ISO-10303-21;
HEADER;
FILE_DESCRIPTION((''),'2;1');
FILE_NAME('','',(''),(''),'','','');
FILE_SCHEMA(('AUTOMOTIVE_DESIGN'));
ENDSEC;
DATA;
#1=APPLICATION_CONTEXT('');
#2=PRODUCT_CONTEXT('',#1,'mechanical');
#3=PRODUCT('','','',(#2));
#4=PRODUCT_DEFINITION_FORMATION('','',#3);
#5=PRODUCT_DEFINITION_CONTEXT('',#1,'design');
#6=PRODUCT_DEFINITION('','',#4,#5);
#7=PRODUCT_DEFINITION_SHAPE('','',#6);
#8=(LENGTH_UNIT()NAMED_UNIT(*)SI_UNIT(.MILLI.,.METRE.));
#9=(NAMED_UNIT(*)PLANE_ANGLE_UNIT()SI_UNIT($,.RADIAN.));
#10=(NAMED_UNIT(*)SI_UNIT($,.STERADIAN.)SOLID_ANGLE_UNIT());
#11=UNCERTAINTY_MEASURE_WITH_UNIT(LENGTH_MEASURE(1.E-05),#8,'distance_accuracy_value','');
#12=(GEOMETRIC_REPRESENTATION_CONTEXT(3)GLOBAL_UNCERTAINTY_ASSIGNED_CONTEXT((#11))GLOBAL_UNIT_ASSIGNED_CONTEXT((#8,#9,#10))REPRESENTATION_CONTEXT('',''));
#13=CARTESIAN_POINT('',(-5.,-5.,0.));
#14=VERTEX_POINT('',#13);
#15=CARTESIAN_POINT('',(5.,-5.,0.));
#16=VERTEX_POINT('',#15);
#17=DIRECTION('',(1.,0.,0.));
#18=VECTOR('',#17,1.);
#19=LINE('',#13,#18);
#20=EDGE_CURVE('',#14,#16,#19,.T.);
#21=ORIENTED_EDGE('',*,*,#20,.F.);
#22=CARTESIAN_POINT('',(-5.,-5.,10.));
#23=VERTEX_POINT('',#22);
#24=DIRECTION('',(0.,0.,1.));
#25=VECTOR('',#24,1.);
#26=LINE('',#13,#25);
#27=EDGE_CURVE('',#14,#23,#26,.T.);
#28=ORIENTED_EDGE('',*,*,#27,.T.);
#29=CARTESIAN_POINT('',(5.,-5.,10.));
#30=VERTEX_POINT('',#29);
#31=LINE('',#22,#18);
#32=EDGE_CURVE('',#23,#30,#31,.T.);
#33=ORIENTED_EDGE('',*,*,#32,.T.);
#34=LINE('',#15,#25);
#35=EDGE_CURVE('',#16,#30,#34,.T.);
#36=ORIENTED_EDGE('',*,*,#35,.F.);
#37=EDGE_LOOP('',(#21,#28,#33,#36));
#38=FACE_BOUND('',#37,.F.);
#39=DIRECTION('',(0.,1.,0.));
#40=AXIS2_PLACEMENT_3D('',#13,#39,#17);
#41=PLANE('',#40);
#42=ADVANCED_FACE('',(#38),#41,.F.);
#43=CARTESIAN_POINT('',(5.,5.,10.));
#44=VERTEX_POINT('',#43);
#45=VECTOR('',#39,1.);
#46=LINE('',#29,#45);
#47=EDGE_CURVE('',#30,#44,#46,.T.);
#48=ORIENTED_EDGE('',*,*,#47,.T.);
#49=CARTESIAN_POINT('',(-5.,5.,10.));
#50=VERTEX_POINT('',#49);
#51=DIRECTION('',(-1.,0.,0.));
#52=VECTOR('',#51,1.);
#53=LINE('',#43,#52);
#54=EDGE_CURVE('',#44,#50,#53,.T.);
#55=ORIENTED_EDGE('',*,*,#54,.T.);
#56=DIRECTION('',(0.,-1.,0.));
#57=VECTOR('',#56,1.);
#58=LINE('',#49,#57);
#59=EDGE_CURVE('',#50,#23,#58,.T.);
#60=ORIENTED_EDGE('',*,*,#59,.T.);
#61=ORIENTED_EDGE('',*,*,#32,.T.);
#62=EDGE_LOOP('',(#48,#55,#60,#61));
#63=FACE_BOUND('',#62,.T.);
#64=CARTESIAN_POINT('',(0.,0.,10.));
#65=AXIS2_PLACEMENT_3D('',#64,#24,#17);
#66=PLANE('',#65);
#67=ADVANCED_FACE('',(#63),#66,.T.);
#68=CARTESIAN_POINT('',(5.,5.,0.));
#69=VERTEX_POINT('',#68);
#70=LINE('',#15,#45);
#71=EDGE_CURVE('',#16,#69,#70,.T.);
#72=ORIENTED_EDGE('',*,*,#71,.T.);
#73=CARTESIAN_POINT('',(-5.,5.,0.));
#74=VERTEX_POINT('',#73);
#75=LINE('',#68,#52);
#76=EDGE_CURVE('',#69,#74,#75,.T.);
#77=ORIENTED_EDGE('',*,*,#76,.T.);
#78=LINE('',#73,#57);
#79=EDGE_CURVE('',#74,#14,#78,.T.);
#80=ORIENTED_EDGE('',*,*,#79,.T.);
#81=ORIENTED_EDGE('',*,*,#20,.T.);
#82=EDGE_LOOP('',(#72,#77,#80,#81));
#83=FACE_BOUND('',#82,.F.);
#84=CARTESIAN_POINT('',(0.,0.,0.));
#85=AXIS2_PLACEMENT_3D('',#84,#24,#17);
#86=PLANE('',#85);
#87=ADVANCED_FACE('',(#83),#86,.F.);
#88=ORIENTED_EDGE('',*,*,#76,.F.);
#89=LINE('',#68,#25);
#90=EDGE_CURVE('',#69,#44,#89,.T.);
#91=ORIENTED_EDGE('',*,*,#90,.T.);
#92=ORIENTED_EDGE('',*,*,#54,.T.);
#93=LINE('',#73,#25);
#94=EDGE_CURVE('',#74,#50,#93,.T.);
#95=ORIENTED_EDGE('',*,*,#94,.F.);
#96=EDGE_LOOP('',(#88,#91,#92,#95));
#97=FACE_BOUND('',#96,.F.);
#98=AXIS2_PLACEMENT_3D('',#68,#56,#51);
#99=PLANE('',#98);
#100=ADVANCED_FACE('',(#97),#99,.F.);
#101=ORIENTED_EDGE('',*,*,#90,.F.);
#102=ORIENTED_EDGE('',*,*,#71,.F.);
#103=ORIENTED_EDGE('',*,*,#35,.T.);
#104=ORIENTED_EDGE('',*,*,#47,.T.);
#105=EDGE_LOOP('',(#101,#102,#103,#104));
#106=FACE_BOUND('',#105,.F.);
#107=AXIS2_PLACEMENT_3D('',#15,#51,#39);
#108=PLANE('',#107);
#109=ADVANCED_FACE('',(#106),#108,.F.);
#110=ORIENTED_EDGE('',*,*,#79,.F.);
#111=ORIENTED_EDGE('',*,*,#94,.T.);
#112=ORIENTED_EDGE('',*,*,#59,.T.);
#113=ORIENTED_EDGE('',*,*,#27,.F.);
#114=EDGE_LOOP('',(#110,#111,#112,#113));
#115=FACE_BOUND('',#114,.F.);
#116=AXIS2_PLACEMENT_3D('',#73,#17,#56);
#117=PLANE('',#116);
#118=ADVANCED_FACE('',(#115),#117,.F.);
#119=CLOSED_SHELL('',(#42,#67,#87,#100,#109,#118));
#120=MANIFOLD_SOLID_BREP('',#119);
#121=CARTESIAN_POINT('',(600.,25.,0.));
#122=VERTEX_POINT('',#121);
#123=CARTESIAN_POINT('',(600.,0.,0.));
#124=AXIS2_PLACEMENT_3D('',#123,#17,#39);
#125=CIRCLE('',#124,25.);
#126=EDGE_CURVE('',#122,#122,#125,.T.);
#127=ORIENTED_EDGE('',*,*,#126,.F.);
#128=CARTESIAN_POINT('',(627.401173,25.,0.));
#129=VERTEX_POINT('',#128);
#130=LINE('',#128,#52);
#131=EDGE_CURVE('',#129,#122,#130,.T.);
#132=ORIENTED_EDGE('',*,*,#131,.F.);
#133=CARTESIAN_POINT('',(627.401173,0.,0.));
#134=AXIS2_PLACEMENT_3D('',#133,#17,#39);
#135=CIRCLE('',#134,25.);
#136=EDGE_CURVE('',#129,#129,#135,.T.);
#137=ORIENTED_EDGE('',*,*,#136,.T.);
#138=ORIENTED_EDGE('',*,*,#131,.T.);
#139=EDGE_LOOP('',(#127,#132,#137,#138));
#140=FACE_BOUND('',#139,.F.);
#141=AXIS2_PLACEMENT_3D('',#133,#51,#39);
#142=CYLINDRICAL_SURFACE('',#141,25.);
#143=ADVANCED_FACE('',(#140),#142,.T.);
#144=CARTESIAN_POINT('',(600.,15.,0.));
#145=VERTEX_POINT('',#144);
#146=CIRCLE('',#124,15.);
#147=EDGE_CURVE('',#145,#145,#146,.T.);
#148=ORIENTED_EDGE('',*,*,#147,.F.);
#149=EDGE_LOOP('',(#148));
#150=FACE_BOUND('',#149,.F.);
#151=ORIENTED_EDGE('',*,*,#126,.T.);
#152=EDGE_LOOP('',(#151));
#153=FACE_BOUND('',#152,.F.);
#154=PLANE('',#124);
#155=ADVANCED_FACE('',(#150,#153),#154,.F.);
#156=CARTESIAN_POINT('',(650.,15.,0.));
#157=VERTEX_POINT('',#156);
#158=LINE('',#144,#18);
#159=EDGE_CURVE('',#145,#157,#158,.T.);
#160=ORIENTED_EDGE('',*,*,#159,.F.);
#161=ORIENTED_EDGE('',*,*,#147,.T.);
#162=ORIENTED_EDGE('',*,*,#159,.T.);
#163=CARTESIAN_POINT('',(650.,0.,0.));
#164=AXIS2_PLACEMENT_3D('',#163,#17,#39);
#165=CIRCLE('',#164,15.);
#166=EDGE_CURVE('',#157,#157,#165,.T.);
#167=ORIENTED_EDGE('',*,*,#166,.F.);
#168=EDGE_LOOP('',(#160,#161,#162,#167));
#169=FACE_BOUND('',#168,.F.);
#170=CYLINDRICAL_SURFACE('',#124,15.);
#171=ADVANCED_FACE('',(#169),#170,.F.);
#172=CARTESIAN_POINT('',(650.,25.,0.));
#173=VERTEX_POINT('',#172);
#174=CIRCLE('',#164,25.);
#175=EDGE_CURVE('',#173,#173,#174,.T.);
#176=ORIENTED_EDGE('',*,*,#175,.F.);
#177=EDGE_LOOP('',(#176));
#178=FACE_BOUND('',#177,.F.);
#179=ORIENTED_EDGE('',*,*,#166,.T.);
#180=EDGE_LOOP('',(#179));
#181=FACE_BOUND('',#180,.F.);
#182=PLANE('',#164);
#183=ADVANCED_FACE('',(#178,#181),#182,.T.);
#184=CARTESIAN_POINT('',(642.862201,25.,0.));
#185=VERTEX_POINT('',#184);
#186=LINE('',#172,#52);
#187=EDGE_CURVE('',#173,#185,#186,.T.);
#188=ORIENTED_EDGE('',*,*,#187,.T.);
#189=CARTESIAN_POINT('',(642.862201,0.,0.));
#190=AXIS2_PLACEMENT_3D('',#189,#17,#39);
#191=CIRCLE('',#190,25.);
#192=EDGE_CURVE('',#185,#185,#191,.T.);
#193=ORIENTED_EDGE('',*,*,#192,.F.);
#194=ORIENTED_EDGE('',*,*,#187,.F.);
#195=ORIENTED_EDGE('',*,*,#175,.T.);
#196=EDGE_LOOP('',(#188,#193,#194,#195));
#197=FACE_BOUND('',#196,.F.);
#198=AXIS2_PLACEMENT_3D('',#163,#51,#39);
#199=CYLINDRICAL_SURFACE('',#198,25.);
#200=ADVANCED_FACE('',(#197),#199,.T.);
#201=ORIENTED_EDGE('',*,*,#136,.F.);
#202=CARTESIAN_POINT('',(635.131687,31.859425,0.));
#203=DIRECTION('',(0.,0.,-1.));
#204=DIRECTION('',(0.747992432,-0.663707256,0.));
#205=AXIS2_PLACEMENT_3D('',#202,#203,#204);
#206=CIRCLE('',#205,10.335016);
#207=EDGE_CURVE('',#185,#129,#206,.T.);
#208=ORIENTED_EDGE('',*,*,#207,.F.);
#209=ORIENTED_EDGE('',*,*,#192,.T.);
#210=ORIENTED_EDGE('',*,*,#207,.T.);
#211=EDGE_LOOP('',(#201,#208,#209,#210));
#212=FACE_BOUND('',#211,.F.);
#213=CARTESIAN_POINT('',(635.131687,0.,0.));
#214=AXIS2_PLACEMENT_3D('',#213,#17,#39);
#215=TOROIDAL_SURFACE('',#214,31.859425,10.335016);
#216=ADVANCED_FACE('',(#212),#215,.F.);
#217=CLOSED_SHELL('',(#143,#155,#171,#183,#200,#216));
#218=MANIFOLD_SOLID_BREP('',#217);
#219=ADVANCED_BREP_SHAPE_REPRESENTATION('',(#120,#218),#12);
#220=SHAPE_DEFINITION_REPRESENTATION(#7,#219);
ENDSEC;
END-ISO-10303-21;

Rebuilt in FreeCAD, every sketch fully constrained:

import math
import FreeCAD as App
import Part
import Sketcher
from FreeCAD import Vector


def add_polygon(sketch, points):
    """Adds a closed chain of lines whose ends are joined by coincident constraints."""
    first, n = sketch.GeometryCount, len(points)
    for a, b in zip(points, points[1:] + points[:1]):
        sketch.addGeometry(Part.LineSegment(App.Vector(*a, 0), App.Vector(*b, 0)), False)
    for i in range(n):
        sketch.addConstraint(Sketcher.Constraint("Coincident", first + i, 2, first + (i + 1) % n, 1))

doc = App.newDocument("Part")
params = doc.addObject("Spreadsheet::Sheet", "Params")
for row, (alias, value) in enumerate([
    ("sketch1_width", "10 mm"),
    ("pad1_length", "10 mm"),
    ("sketch2_width", "50 mm"),
    ("sketch2_height", "10 mm"),
    ("revolution_angle", "360 deg"),
], start=1):
    params.set(f"A{row}", alias)
    params.set(f"B{row}", "=" + value)
    params.setAlias(f"B{row}", alias)

body = doc.addObject("PartDesign::Body", "Body")

sketch1 = body.newObject("Sketcher::SketchObject", "Sketch")
sketch1.AttachmentSupport = (doc.getObject("XY_Plane"), [""])
sketch1.MapMode = "FlatFace"
add_polygon(sketch1, [(-5, -5), (5, -5), (5, 5), (-5, 5)])
sketch1.addConstraint([
    Sketcher.Constraint("Horizontal", 0),
    Sketcher.Constraint("Vertical", 1),
    Sketcher.Constraint("Horizontal", 2),
    Sketcher.Constraint("Vertical", 3),
    Sketcher.Constraint("Symmetric", 0, 2, 2, 2, -1, 1),
    Sketcher.Constraint("Equal", 2, 1),
    Sketcher.Constraint("DistanceX", 0, 1, 0, 2, 10.0),
])
sketch1.setExpression("Constraints[10]", "Params.sketch1_width")
pad1 = body.newObject("PartDesign::Pad", "Pad")
pad1.Profile = sketch1
pad1.setExpression("Length", "Params.pad1_length")
body2 = doc.addObject("PartDesign::Body", "Body001")

sketch2 = body2.newObject("Sketcher::SketchObject", "Sketch001")
sketch2.AttachmentSupport = (doc.getObject("XY_Plane001"), [""])
sketch2.MapMode = "FlatFace"
sketch2.addGeometry([
    Part.LineSegment(Vector(600, 25, 0), Vector(600, 15, 0)),
    Part.LineSegment(Vector(600, 15, 0), Vector(650, 15, 0)),
    Part.LineSegment(Vector(650, 15, 0), Vector(650, 25, 0)),
    Part.LineSegment(Vector(650, 25, 0), Vector(643, 25, 0)),
    Part.ArcOfCircle(Part.Circle(Vector(635, 32, 0), Vector(0, 0, 1), 10), math.radians(-138), math.radians(-42)),
    Part.LineSegment(Vector(627, 25, 0), Vector(600, 25, 0)),
], False)
sketch2.addConstraint([
    Sketcher.Constraint("Coincident", 0, 2, 1, 1),
    Sketcher.Constraint("Coincident", 1, 2, 2, 1),
    Sketcher.Constraint("Coincident", 2, 2, 3, 1),
    Sketcher.Constraint("Coincident", 3, 2, 4, 2),
    Sketcher.Constraint("Coincident", 4, 1, 5, 1),
    Sketcher.Constraint("Coincident", 5, 2, 0, 1),
    Sketcher.Constraint("Vertical", 0),
    Sketcher.Constraint("Horizontal", 1),
    Sketcher.Constraint("Vertical", 2),
    Sketcher.Constraint("Horizontal", 3),
    Sketcher.Constraint("Horizontal", 5),
    Sketcher.Constraint("Horizontal", 3, 2, 4, 1),
    Sketcher.Constraint("DistanceX", 1, 1, 1, 2, 50.0),
    Sketcher.Constraint("DistanceY", 0, 2, 0, 1, 10.0),
    Sketcher.Constraint("DistanceX", -1, 1, 0, 2, 600.0),
    Sketcher.Constraint("DistanceY", -1, 1, 0, 2, 15.0),
    Sketcher.Constraint("DistanceX", 3, 2, 3, 1, 7.137799),
    Sketcher.Constraint("Radius", 4, 10.335016),
    Sketcher.Constraint("DistanceX", 5, 2, 5, 1, 27.401173),
])
sketch2.setExpression("Constraints[12]", "Params.sketch2_width")
sketch2.setExpression("Constraints[13]", "Params.sketch2_height")
revolution = body2.newObject("PartDesign::Revolution", "Revolution")
revolution.Profile = sketch2
revolution.ReferenceAxis = (sketch2, ["H_Axis"])
revolution.setExpression("Angle", "Params.revolution_angle")

doc.recompute()
